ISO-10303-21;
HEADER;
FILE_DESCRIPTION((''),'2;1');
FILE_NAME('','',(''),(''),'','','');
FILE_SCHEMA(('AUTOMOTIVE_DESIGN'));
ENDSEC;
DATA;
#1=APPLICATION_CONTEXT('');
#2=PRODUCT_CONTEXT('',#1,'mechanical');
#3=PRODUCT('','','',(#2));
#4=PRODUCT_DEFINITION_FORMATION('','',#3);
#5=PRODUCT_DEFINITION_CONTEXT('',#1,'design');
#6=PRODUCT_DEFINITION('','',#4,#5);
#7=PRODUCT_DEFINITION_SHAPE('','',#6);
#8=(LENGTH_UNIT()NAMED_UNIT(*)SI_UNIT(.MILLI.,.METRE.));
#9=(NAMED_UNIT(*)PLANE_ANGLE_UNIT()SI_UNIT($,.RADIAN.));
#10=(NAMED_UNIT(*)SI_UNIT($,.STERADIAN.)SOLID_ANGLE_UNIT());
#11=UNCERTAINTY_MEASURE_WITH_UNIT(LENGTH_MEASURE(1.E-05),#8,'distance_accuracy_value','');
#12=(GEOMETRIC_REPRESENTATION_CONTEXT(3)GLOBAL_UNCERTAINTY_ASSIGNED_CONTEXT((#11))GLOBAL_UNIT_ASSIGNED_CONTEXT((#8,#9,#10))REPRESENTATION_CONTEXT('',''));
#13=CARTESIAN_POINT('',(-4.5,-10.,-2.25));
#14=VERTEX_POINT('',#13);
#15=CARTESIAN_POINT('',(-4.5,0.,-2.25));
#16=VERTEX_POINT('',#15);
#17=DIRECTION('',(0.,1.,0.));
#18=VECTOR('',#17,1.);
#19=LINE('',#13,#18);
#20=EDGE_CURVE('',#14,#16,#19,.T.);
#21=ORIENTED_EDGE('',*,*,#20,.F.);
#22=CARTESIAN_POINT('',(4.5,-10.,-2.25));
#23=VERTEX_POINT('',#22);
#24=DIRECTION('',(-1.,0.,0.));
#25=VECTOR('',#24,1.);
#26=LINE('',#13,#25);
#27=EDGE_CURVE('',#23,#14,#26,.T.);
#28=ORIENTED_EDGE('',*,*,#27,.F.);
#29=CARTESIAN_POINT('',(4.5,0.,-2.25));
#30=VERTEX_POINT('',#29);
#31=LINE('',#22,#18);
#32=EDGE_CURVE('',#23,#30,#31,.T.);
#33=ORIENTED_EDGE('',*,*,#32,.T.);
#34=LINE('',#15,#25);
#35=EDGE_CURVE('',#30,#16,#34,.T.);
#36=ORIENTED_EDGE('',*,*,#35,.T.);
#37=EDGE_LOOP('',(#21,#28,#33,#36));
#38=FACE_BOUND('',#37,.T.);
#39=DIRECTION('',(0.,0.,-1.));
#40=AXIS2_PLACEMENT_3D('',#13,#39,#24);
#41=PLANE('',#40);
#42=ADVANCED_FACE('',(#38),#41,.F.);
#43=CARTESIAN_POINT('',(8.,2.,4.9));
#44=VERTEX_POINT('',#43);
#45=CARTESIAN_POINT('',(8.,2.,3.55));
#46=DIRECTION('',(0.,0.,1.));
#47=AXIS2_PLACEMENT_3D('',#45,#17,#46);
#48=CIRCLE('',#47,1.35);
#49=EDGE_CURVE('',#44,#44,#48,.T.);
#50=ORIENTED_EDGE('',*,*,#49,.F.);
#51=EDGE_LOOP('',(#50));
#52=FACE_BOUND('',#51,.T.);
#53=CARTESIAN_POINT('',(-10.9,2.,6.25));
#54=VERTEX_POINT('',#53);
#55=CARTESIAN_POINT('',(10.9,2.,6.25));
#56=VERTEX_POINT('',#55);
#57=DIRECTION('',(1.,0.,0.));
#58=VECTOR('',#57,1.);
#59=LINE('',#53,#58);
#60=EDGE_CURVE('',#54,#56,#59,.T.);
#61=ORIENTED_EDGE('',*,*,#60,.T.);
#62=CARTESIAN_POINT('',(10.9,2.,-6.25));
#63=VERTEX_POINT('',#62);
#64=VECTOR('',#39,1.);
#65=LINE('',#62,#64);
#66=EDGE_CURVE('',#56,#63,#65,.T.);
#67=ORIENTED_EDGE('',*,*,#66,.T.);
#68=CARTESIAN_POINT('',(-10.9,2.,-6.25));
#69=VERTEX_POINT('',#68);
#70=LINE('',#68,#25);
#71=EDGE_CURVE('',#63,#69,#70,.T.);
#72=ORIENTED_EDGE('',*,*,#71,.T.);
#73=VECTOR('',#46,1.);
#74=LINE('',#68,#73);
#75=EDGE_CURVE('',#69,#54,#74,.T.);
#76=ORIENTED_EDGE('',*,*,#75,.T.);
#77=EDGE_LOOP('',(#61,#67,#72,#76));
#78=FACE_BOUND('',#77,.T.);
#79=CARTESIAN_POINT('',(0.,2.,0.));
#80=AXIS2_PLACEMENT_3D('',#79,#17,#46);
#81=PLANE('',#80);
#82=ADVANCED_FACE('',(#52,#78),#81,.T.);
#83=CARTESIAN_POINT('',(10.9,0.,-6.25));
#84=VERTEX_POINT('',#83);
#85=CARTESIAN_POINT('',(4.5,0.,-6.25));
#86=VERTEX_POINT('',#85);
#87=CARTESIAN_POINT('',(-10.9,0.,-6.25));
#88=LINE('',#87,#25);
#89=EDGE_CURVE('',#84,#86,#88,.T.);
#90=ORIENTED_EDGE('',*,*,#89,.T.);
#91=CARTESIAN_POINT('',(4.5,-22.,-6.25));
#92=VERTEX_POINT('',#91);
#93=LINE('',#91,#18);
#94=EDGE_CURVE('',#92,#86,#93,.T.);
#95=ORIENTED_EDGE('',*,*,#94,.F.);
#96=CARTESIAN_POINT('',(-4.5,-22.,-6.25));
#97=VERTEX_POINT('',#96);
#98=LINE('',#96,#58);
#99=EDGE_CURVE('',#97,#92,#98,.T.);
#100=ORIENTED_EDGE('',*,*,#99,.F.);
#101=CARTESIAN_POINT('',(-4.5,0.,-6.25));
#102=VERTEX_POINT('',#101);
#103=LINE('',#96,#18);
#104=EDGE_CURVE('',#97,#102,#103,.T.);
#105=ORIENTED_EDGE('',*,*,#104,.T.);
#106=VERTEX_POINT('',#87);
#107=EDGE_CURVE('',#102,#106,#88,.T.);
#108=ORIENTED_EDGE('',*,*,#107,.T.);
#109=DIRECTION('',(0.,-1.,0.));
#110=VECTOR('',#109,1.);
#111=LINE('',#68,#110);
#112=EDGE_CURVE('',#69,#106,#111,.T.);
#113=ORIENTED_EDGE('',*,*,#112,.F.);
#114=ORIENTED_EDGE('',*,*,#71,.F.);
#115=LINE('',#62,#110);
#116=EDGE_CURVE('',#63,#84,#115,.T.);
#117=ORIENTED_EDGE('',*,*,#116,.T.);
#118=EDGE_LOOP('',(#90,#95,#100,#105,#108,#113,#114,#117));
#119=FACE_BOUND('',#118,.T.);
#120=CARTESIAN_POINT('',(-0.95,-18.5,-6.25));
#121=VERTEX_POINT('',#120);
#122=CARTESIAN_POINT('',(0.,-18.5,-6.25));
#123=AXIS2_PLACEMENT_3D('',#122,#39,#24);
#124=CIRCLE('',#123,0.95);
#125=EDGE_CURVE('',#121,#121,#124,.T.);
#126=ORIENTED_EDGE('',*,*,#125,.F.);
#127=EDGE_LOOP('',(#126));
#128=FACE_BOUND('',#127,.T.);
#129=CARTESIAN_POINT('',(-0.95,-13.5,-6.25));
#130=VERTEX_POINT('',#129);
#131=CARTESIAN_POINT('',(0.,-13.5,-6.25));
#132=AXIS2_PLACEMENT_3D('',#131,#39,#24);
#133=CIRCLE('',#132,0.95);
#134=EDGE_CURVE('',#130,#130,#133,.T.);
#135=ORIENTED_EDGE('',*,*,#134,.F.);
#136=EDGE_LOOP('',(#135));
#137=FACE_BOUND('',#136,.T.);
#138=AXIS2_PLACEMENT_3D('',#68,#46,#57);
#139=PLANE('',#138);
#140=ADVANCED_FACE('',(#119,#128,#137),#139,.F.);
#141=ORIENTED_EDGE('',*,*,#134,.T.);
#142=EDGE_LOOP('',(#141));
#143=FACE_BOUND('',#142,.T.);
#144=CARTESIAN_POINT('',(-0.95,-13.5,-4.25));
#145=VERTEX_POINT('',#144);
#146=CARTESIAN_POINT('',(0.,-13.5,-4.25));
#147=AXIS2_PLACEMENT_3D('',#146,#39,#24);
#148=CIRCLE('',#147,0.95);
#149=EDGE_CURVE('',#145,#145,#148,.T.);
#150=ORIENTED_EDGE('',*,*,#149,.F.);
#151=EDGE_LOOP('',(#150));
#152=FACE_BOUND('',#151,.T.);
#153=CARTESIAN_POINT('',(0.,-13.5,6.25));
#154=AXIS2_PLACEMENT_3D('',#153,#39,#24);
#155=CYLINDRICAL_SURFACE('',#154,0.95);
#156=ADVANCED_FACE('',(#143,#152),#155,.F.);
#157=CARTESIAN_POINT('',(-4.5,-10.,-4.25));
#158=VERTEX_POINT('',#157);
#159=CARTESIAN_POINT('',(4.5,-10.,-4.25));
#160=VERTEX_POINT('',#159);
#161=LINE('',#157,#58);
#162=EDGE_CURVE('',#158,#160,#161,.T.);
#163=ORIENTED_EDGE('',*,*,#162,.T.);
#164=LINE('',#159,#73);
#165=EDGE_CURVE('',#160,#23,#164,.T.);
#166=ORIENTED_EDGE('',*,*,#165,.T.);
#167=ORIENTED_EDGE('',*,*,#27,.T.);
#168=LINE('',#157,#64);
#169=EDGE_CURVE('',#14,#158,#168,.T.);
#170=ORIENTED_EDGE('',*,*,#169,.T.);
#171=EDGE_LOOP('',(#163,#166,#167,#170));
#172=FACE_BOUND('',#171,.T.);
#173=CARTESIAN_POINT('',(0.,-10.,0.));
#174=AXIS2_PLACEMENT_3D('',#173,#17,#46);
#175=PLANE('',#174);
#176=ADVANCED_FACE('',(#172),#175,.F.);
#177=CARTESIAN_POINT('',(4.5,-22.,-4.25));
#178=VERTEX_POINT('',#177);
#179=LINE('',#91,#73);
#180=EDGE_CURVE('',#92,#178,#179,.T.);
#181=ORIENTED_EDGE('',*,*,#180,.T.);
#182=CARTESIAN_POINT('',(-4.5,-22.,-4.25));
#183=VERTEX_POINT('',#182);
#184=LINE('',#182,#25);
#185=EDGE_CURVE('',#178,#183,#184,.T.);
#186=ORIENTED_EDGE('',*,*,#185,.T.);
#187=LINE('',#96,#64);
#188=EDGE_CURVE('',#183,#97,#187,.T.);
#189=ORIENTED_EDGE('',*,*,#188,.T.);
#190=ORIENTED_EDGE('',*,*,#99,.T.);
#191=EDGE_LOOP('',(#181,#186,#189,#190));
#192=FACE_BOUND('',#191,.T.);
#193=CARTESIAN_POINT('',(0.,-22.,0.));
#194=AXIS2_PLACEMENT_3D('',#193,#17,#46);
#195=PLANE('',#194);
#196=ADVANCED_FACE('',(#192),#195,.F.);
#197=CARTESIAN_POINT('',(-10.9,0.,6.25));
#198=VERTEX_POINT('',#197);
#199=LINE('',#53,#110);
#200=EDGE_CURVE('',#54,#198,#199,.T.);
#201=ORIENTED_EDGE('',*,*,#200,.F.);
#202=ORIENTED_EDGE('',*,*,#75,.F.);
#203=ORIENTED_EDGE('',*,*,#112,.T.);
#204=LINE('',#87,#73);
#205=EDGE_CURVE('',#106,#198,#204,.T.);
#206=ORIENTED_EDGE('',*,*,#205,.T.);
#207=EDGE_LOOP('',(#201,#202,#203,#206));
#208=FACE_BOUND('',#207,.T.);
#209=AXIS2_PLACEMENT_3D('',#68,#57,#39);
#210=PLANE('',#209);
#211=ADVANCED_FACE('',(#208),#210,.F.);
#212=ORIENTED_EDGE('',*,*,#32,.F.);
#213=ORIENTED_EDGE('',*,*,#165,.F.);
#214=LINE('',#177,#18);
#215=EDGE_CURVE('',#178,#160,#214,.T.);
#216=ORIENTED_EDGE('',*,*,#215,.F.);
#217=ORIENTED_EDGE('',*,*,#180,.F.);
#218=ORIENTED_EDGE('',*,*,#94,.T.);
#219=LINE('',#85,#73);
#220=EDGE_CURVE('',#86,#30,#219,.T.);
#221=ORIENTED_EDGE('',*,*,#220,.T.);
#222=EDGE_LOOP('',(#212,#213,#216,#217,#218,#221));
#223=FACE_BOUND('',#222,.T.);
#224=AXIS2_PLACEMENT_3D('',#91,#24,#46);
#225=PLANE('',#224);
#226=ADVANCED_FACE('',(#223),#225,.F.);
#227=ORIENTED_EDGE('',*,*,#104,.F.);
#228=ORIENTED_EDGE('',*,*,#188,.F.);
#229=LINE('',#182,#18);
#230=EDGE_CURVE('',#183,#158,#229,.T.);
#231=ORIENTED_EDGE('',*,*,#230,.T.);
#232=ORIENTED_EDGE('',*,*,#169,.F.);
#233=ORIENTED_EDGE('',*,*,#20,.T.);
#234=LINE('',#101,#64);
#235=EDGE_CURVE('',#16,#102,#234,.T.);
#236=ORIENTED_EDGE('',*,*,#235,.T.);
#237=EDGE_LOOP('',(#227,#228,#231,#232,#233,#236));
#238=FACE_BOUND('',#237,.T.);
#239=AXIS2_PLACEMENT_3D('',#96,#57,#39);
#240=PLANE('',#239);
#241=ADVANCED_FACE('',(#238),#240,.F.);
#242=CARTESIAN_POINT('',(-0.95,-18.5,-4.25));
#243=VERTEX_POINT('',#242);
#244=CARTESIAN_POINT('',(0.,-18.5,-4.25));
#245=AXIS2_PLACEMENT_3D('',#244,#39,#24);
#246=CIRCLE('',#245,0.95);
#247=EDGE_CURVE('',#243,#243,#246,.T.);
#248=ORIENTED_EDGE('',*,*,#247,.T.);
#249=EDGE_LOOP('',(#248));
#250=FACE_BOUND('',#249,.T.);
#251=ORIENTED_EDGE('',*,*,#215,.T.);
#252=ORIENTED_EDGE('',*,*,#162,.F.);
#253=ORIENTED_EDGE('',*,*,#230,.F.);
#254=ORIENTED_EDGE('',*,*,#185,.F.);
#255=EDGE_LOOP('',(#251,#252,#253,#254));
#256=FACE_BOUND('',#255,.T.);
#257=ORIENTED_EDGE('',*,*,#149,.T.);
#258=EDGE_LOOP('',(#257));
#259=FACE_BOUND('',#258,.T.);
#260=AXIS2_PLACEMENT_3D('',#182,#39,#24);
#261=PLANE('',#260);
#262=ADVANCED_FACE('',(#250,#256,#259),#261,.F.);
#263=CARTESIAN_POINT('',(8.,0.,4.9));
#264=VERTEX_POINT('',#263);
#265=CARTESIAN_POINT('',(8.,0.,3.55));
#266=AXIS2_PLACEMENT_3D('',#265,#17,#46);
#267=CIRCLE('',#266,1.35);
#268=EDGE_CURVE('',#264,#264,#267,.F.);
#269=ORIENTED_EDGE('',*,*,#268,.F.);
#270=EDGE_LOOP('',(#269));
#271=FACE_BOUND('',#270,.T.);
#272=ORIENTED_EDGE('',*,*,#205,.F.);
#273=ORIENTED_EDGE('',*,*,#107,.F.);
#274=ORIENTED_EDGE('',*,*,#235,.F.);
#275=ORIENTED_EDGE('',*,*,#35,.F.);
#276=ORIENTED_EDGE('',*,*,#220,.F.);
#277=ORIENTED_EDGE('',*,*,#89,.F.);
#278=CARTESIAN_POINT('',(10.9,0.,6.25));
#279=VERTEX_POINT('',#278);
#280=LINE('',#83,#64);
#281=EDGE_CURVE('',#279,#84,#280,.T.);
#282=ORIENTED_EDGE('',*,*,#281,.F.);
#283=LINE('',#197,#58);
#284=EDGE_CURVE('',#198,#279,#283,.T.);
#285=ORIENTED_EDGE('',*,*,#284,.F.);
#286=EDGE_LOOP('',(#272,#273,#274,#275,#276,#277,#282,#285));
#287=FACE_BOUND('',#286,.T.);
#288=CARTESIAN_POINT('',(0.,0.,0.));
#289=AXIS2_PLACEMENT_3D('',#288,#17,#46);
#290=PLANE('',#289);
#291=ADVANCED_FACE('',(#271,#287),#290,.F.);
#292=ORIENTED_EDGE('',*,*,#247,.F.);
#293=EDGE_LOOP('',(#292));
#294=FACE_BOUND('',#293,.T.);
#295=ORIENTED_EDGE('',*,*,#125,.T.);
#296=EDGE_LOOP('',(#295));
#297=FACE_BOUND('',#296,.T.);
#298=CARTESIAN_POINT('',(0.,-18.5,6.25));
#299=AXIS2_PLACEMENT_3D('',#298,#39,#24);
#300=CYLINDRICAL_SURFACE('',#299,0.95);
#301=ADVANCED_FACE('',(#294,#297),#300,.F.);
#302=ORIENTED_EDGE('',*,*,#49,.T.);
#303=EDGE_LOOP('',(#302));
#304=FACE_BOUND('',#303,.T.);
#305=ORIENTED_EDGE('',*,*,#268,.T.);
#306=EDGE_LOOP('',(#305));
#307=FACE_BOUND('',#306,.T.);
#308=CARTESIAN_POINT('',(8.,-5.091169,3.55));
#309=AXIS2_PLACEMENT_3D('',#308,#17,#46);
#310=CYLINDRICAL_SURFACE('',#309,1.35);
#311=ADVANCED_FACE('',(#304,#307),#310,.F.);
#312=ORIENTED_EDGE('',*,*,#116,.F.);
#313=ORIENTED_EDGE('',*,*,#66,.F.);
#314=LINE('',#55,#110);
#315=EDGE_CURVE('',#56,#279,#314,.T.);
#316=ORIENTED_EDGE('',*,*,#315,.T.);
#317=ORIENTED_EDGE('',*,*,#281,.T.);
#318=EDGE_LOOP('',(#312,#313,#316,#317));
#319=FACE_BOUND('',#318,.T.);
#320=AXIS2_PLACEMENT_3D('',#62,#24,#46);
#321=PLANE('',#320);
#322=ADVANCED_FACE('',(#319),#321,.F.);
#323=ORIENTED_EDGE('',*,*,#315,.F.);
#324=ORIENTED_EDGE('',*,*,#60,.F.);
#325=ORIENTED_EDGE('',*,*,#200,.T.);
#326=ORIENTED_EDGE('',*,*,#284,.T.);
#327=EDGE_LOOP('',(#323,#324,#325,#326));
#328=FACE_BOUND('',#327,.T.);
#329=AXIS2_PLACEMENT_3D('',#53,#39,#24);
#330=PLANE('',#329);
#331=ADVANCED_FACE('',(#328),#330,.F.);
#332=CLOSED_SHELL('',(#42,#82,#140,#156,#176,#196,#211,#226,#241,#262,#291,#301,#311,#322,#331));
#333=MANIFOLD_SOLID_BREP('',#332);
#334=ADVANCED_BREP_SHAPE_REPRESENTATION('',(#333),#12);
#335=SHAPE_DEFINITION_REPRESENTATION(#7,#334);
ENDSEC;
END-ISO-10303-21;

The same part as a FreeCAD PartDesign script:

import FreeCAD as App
import Part
import Sketcher

V = App.Vector

doc = App.newDocument("Part")
body = doc.addObject("PartDesign::Body", "Body")

# Sketch on XZ plane
sketch1 = body.newObject("Sketcher::SketchObject", "Sketch")
sketch1.AttachmentSupport = (doc.getObject("XZ_Plane"), [""])
sketch1.MapMode = "FlatFace"
sketch1.addGeometry([
    Part.LineSegment(V(-11, -6, 0), V(-11, 6, 0)),
    Part.LineSegment(V(-11, 6, 0), V(11, 6, 0)),
    Part.LineSegment(V(11, 6, 0), V(11, -6, 0)),
    Part.LineSegment(V(11, -6, 0), V(-11, -6, 0)),
], False)
sketch1.addConstraint([
    Sketcher.Constraint("Coincident", 0, 2, 1, 1),
    Sketcher.Constraint("Coincident", 1, 2, 2, 1),
    Sketcher.Constraint("Coincident", 2, 2, 3, 1),
    Sketcher.Constraint("Coincident", 3, 2, 0, 1),
    Sketcher.Constraint("Vertical", 0),
    Sketcher.Constraint("Horizontal", 1),
    Sketcher.Constraint("Vertical", 2),
    Sketcher.Constraint("Horizontal", 3),
    Sketcher.Constraint("Symmetric", 0, 2, 2, 2, -1, 1),
    Sketcher.Constraint("DistanceX", 1, 1, 1, 2, 21.8),
    Sketcher.Constraint("DistanceY", 0, 1, 0, 2, 12.5),
])
pad1 = body.newObject("PartDesign::Pad", "Pad")
pad1.Profile = sketch1
pad1.Length = 2
pad1.Reversed = True

# Sketch on XZ plane
sketch2 = body.newObject("Sketcher::SketchObject", "Sketch001")
sketch2.AttachmentSupport = (doc.getObject("XZ_Plane"), [""])
sketch2.MapMode = "FlatFace"
sketch2.AttachmentOffset = App.Placement(V(0, 0, -2), App.Rotation())
sketch2.addGeometry(Part.Circle(V(8, 3.5, 0), V(0, 0, 1), 1.8), False)
sketch2.addConstraint([
    Sketcher.Constraint("Diameter", 0, 3.6),
    Sketcher.Constraint("DistanceX", -1, 1, 0, 3, 8.0),
    Sketcher.Constraint("DistanceY", -1, 1, 0, 3, 3.55),
])
pocket1 = body.newObject("PartDesign::Pocket", "Pocket")
pocket1.Profile = sketch2
pocket1.Type = "UpToFirst"
pocket1.Reversed = True

# Sketch on XZ plane
sketch3 = body.newObject("Sketcher::SketchObject", "Sketch002")
sketch3.AttachmentSupport = (doc.getObject("XZ_Plane"), [""])
sketch3.MapMode = "FlatFace"
sketch3.addGeometry([
    Part.LineSegment(V(-4.5, -4.2, 0), V(-4.5, -6.2, 0)),
    Part.LineSegment(V(-4.5, -6.2, 0), V(4.5, -6.2, 0)),
    Part.LineSegment(V(4.5, -6.2, 0), V(4.5, -4.2, 0)),
    Part.LineSegment(V(4.5, -4.2, 0), V(-4.5, -4.2, 0)),
], False)
sketch3.addConstraint([
    Sketcher.Constraint("Coincident", 0, 2, 1, 1),
    Sketcher.Constraint("Coincident", 1, 2, 2, 1),
    Sketcher.Constraint("Coincident", 2, 2, 3, 1),
    Sketcher.Constraint("Coincident", 3, 2, 0, 1),
    Sketcher.Constraint("Vertical", 0),
    Sketcher.Constraint("Horizontal", 1),
    Sketcher.Constraint("Vertical", 2),
    Sketcher.Constraint("Horizontal", 3),
    Sketcher.Constraint("DistanceX", 1, 1, 1, 2, 9.0),
    Sketcher.Constraint("DistanceY", 0, 2, 0, 1, 2.0),
    Sketcher.Constraint("DistanceX", 0, 2, -1, 1, 4.5),
    Sketcher.Constraint("DistanceY", 0, 2, -1, 1, 6.25),
])
pad2 = body.newObject("PartDesign::Pad", "Pad001")
pad2.Profile = sketch3
pad2.Length = 22

# Sketch on XY plane
sketch4 = body.newObject("Sketcher::SketchObject", "Sketch003")
sketch4.AttachmentSupport = (doc.getObject("XY_Plane"), [""])
sketch4.MapMode = "FlatFace"
sketch4.AttachmentOffset = App.Placement(V(0, 0, -6.25), App.Rotation())
sketch4.addGeometry([
    Part.Circle(V(0, -13.5, 0), V(0, 0, 1), 0.9),
    Part.Circle(V(0, -18.5, 0), V(0, 0, 1), 0.9),
], False)
sketch4.addConstraint([
    Sketcher.Constraint("Equal", 0, 1),
    Sketcher.Constraint("PointOnObject", 0, 3, -2),
    Sketcher.Constraint("PointOnObject", 1, 3, -2),
    Sketcher.Constraint("Diameter", 0, 1.9),
    Sketcher.Constraint("DistanceY", 1, 3, 0, 3, 5.0),
    Sketcher.Constraint("DistanceY", 0, 3, -1, 1, 13.5),
])
pocket2 = body.newObject("PartDesign::Pocket", "Pocket001")
pocket2.Profile = sketch4
pocket2.Type = "ThroughAll"
pocket2.Reversed = True

# Sketch on XZ plane
sketch5 = body.newObject("Sketcher::SketchObject", "Sketch004")
sketch5.AttachmentSupport = (doc.getObject("XZ_Plane"), [""])
sketch5.MapMode = "FlatFace"
sketch5.AttachmentOffset = App.Placement(V(0, 0, -2), App.Rotation())
sketch5.addGeometry([
    Part.Circle(V(8, 3.5, 0), V(0, 0, 1), 1.8),
    Part.Circle(V(8, 3.5, 0), V(0, 0, 1), 1.4),
], False)
sketch5.addConstraint([
    Sketcher.Constraint("Coincident", 1, 3, 0, 3),
    Sketcher.Constraint("Diameter", 0, 3.6),
    Sketcher.Constraint("Diameter", 1, 2.7),
    Sketcher.Constraint("DistanceX", -1, 1, 0, 3, 8.0),
    Sketcher.Constraint("DistanceY", -1, 1, 0, 3, 3.55),
])
pad3 = body.newObject("PartDesign::Pad", "Pad002")
pad3.Profile = sketch5
pad3.Length = 2

# Sketch on XZ plane
sketch6 = body.newObject("Sketcher::SketchObject", "Sketch005")
sketch6.AttachmentSupport = (doc.getObject("XZ_Plane"), [""])
sketch6.MapMode = "FlatFace"
sketch6.addGeometry([
    Part.LineSegment(V(-4.5, -2.2, 0), V(-4.5, -4.2, 0)),
    Part.LineSegment(V(-4.5, -4.2, 0), V(4.5, -4.2, 0)),
    Part.LineSegment(V(4.5, -4.2, 0), V(4.5, -2.2, 0)),
    Part.LineSegment(V(4.5, -2.2, 0), V(-4.5, -2.2, 0)),
], False)
sketch6.addConstraint([
    Sketcher.Constraint("Coincident", 0, 2, 1, 1),
    Sketcher.Constraint("Coincident", 1, 2, 2, 1),
    Sketcher.Constraint("Coincident", 2, 2, 3, 1),
    Sketcher.Constraint("Coincident", 3, 2, 0, 1),
    Sketcher.Constraint("Vertical", 0),
    Sketcher.Constraint("Horizontal", 1),
    Sketcher.Constraint("Vertical", 2),
    Sketcher.Constraint("Horizontal", 3),
    Sketcher.Constraint("DistanceX", 1, 1, 1, 2, 9.0),
    Sketcher.Constraint("DistanceY", 0, 2, 0, 1, 2.0),
    Sketcher.Constraint("DistanceX", 0, 2, -1, 1, 4.5),
    Sketcher.Constraint("DistanceY", 0, 2, -1, 1, 4.25),
])
pad4 = body.newObject("PartDesign::Pad", "Pad003")
pad4.Profile = sketch6
pad4.Length = 10

doc.recompute()
